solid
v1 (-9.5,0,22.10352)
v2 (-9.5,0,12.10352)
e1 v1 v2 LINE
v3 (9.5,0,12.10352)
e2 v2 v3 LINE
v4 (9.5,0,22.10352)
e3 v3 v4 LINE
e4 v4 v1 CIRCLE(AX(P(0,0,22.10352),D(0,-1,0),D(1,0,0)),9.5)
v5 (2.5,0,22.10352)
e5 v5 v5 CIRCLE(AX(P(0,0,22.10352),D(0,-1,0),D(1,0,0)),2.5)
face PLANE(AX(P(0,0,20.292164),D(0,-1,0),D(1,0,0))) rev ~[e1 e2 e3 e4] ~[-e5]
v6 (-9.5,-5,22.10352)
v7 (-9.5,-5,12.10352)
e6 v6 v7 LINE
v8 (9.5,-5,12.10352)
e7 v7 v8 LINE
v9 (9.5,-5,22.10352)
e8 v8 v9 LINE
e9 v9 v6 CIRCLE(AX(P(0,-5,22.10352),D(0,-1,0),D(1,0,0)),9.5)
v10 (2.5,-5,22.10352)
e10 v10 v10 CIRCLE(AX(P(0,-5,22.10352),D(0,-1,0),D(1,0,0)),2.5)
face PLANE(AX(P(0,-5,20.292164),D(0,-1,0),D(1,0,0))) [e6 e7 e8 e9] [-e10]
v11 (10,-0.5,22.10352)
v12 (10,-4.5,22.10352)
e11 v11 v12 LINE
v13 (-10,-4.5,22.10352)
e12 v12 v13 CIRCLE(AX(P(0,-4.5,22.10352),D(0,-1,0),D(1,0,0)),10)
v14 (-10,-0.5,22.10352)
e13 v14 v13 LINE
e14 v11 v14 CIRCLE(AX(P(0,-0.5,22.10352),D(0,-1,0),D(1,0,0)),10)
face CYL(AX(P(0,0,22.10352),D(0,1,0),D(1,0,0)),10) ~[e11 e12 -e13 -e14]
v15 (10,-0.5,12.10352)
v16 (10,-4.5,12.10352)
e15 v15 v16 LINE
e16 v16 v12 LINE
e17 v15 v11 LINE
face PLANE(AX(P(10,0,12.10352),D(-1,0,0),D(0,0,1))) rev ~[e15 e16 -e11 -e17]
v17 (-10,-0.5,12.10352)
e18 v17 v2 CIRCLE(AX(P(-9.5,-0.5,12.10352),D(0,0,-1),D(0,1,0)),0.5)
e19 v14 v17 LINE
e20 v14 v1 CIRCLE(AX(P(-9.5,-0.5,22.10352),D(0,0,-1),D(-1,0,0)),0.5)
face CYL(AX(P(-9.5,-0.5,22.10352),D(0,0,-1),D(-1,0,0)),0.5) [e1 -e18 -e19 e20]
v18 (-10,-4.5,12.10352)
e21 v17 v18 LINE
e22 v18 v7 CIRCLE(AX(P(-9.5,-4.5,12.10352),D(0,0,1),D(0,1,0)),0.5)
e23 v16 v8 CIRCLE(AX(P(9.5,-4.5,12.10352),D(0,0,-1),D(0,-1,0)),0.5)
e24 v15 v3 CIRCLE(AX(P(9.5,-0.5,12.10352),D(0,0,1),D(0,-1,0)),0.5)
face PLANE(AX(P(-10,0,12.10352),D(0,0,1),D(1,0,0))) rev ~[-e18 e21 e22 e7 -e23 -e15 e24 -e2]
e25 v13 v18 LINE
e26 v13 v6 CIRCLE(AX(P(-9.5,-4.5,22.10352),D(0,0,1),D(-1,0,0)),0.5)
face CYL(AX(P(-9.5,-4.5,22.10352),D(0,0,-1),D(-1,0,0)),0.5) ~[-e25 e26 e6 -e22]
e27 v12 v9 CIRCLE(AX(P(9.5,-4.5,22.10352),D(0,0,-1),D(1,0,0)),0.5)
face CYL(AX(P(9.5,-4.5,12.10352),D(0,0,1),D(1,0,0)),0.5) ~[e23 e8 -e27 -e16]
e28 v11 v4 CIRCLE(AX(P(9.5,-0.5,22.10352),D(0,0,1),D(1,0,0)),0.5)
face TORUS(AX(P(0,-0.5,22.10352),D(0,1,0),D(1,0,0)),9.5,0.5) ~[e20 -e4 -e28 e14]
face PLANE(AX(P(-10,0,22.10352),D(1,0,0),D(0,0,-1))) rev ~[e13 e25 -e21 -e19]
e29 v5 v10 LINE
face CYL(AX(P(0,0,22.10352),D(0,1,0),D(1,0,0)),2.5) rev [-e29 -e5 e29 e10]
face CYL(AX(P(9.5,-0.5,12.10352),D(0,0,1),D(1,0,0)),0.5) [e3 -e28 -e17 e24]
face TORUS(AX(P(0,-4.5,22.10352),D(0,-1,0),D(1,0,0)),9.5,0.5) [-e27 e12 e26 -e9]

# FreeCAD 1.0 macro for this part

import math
import FreeCAD as App
import Part
import Sketcher

V = App.Vector
Q = App.Units.Quantity


def edges_at(feature, points):
    """Names of the edges that pass closest to the given points."""
    edges = feature.Shape.Edges
    near = lambda p: min(range(len(edges)), key=lambda i: edges[i].distToShape(Part.Vertex(*p))[0])
    return sorted({f"Edge{near(p) + 1}" for p in points})

doc = App.newDocument("Part")
body = doc.addObject("PartDesign::Body", "Body")

sketch1 = body.newObject("Sketcher::SketchObject", "Sketch")
sketch1.AttachmentSupport = (doc.getObject("XZ_Plane"), [""])
sketch1.MapMode = "FlatFace"
sketch1.addGeometry([
    Part.LineSegment(V(-10, 12.1, 0), V(10, 12.1, 0)),
    Part.LineSegment(V(10, 12.1, 0), V(10, 22.1, 0)),
    Part.ArcOfCircle(Part.Circle(V(0, 22.1, 0), V(0, 0, 1), 10), math.radians(0), math.radians(180)),
    Part.LineSegment(V(-10, 22.1, 0), V(-10, 12.1, 0)),
    Part.Circle(V(0, 22.1, 0), V(0, 0, 1), 2.5),
], False)
sketch1.addConstraint([
    Sketcher.Constraint("Coincident", 0, 2, 1, 1),
    Sketcher.Constraint("Tangent", 1, 2, 2, 1),
    Sketcher.Constraint("Tangent", 2, 2, 3, 1),
    Sketcher.Constraint("Coincident", 3, 2, 0, 1),
    Sketcher.Constraint("Horizontal", 0),
    Sketcher.Constraint("Vertical", 1),
    Sketcher.Constraint("Vertical", 3),
    Sketcher.Constraint("Coincident", 4, 3, 2, 3),
    Sketcher.Constraint("PointOnObject", 2, 3, -2),
    Sketcher.Constraint("Diameter", 4, Q("5 mm")),
    Sketcher.Constraint("Radius", 2, Q("10 mm")),
    Sketcher.Constraint("DistanceY", 1, 1, 1, 2, Q("10 mm")),
    Sketcher.Constraint("DistanceY", -1, 1, 2, 3, Q("22.10352 mm")),
])
pad1 = body.newObject("PartDesign::Pad", "Pad")
pad1.Profile = sketch1
pad1.Length = 5
doc.recompute()

fillet = body.newObject("PartDesign::Fillet", "Fillet")
fillet.Base = (pad1, edges_at(pad1, [(0, -5, 32.104), (10, 0, 17.104)]))
fillet.Radius = 0.5

doc.recompute()
